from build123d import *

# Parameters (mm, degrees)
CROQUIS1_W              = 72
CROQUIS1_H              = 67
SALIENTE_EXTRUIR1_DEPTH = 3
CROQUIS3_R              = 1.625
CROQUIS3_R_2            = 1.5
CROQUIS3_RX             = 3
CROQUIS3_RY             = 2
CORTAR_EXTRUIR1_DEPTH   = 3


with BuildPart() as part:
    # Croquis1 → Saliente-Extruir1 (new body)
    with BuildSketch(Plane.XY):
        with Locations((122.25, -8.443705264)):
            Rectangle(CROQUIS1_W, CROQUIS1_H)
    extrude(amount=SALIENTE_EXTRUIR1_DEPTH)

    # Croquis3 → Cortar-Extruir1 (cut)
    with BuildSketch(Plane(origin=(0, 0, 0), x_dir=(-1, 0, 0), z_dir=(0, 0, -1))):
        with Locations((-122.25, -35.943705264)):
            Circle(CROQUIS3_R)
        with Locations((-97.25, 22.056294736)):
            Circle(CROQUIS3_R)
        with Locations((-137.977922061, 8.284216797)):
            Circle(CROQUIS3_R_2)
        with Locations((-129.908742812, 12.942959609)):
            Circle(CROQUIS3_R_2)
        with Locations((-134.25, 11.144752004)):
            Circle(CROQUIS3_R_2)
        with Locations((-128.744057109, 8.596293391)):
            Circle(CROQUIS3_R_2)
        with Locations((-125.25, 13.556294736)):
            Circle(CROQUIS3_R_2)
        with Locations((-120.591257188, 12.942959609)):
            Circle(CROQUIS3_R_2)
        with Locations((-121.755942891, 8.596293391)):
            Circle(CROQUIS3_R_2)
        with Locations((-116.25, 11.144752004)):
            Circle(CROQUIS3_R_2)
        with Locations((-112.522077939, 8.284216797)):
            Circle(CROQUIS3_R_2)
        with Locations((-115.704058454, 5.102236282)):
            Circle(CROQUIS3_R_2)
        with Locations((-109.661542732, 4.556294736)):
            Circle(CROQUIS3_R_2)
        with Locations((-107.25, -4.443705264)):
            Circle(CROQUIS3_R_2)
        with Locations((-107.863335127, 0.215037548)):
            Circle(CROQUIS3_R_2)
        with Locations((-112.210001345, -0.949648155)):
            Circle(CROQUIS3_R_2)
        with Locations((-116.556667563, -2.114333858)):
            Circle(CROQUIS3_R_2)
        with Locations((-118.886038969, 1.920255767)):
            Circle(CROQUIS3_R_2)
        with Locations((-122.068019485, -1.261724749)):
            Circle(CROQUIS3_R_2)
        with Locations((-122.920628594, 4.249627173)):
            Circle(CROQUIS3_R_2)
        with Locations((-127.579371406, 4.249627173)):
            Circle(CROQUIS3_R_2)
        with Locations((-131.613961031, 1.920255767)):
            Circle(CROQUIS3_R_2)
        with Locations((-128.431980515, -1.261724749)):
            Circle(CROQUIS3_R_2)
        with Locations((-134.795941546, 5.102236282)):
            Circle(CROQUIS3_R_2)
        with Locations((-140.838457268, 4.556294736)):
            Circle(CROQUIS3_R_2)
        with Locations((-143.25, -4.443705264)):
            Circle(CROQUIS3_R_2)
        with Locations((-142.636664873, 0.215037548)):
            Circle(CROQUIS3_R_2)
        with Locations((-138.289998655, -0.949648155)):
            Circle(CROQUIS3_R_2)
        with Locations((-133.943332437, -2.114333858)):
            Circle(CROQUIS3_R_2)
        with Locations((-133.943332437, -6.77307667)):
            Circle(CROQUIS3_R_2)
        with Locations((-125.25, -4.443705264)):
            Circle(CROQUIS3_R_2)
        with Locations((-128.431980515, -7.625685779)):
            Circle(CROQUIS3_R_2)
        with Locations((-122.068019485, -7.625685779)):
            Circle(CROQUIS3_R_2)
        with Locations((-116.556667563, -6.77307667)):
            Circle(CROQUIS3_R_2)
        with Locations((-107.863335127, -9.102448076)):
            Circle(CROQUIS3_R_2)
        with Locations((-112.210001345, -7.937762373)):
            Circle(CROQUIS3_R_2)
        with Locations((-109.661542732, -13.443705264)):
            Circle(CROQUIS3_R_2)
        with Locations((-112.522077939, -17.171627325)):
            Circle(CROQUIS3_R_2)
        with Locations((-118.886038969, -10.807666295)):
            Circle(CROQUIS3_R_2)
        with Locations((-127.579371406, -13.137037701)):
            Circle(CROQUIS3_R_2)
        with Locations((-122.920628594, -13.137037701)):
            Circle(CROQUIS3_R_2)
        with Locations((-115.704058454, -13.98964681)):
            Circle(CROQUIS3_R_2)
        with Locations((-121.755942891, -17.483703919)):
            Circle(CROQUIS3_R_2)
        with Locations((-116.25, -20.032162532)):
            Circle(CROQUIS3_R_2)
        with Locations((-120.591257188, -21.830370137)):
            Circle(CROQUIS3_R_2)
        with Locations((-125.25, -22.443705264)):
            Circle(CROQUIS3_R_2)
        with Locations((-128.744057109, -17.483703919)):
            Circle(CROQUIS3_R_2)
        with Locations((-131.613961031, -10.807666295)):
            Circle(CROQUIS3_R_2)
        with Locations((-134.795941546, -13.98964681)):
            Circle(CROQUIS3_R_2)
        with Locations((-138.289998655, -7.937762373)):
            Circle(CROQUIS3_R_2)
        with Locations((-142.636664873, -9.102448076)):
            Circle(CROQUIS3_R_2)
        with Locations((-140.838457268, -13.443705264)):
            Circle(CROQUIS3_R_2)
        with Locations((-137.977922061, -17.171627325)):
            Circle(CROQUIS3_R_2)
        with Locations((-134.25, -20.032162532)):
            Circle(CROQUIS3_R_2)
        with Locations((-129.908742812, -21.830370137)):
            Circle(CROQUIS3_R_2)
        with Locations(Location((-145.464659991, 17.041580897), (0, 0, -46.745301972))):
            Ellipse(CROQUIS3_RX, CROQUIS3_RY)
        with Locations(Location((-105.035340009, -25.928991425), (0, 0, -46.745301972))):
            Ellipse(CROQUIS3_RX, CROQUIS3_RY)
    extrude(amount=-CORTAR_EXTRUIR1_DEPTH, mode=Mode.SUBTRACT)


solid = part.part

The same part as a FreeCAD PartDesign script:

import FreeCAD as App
import Part
import Sketcher

V = App.Vector
Q = App.Units.Quantity

doc = App.newDocument("Part")
body = doc.addObject("PartDesign::Body", "Body")

# Sketch on XY plane
sketch1 = body.newObject("Sketcher::SketchObject", "Sketch")
sketch1.AttachmentSupport = (doc.getObject("XY_Plane"), [""])
sketch1.MapMode = "FlatFace"
sketch1.addGeometry([
    Part.LineSegment(V(86.25, 25.056295, 0), V(86.25, -41.943705, 0)),
    Part.LineSegment(V(86.25, -41.943705, 0), V(158.25, -41.943705, 0)),
    Part.LineSegment(V(158.25, -41.943705, 0), V(158.25, 25.056295, 0)),
    Part.LineSegment(V(158.25, 25.056295, 0), V(86.25, 25.056295, 0)),
], False)
sketch1.addConstraint([
    Sketcher.Constraint("Coincident", 0, 2, 1, 1),
    Sketcher.Constraint("Coincident", 1, 2, 2, 1),
    Sketcher.Constraint("Coincident", 2, 2, 3, 1),
    Sketcher.Constraint("Coincident", 3, 2, 0, 1),
    Sketcher.Constraint("Vertical", 0),
    Sketcher.Constraint("Horizontal", 1),
    Sketcher.Constraint("Vertical", 2),
    Sketcher.Constraint("Horizontal", 3),
    Sketcher.Constraint("DistanceX", 1, 1, 1, 2, Q("72 mm")),
    Sketcher.Constraint("DistanceY", 0, 2, 0, 1, Q("67 mm")),
    Sketcher.Constraint("DistanceX", -1, 1, 0, 2, Q("86.25 mm")),
    Sketcher.Constraint("DistanceY", 0, 2, -1, 1, Q("41.943705 mm")),
])
pad1 = body.newObject("PartDesign::Pad", "Pad")
pad1.Profile = sketch1
pad1.Length = 3

# Sketch on XY plane
sketch2 = body.newObject("Sketcher::SketchObject", "Sketch001")
sketch2.AttachmentSupport = (doc.getObject("XY_Plane"), [""])
sketch2.MapMode = "FlatFace"
sketch2.addGeometry([
    Part.Circle(V(122.25, -35.943705, 0), V(0, 0, 1), 1.625),  # 0
    Part.Circle(V(97.25, 22.056295, 0), V(0, 0, 1), 1.625),  # 1
    Part.Circle(V(137.977922, 8.284217, 0), V(0, 0, 1), 1.5),  # 2
    Part.Circle(V(129.908743, 12.94296, 0), V(0, 0, 1), 1.5),  # 3
    Part.Circle(V(134.25, 11.144752, 0), V(0, 0, 1), 1.5),  # 4
    Part.Circle(V(128.744057, 8.596293, 0), V(0, 0, 1), 1.5),  # 5
    Part.Circle(V(125.25, 13.556295, 0), V(0, 0, 1), 1.5),  # 6
    Part.Circle(V(120.591257, 12.94296, 0), V(0, 0, 1), 1.5),  # 7
    Part.Circle(V(121.755943, 8.596293, 0), V(0, 0, 1), 1.5),  # 8
    Part.Circle(V(116.25, 11.144752, 0), V(0, 0, 1), 1.5),  # 9
    Part.Circle(V(112.522078, 8.284217, 0), V(0, 0, 1), 1.5),  # 10
    Part.Circle(V(115.704058, 5.102236, 0), V(0, 0, 1), 1.5),  # 11
    Part.Circle(V(109.661543, 4.556295, 0), V(0, 0, 1), 1.5),  # 12
    Part.Circle(V(107.25, -4.443705, 0), V(0, 0, 1), 1.5),  # 13
    Part.Circle(V(107.863335, 0.215038, 0), V(0, 0, 1), 1.5),  # 14
    Part.Circle(V(112.210001, -0.949648, 0), V(0, 0, 1), 1.5),  # 15
    Part.Circle(V(116.556668, -2.114334, 0), V(0, 0, 1), 1.5),  # 16
    Part.Circle(V(118.886039, 1.920256, 0), V(0, 0, 1), 1.5),  # 17
    Part.Circle(V(122.068019, -1.261725, 0), V(0, 0, 1), 1.5),  # 18
    Part.Circle(V(122.920629, 4.249627, 0), V(0, 0, 1), 1.5),  # 19
    Part.Circle(V(127.579371, 4.249627, 0), V(0, 0, 1), 1.5),  # 20
    Part.Circle(V(131.613961, 1.920256, 0), V(0, 0, 1), 1.5),  # 21
    Part.Circle(V(128.431981, -1.261725, 0), V(0, 0, 1), 1.5),  # 22
    Part.Circle(V(134.795942, 5.102236, 0), V(0, 0, 1), 1.5),  # 23
    Part.Circle(V(140.838457, 4.556295, 0), V(0, 0, 1), 1.5),  # 24
    Part.Circle(V(143.25, -4.443705, 0), V(0, 0, 1), 1.5),  # 25
    Part.Circle(V(142.636665, 0.215038, 0), V(0, 0, 1), 1.5),  # 26
    Part.Circle(V(138.289999, -0.949648, 0), V(0, 0, 1), 1.5),  # 27
    Part.Circle(V(133.943332, -2.114334, 0), V(0, 0, 1), 1.5),  # 28
    Part.Circle(V(133.943332, -6.773077, 0), V(0, 0, 1), 1.5),  # 29
    Part.Circle(V(125.25, -4.443705, 0), V(0, 0, 1), 1.5),  # 30
    Part.Circle(V(128.431981, -7.625686, 0), V(0, 0, 1), 1.5),  # 31
    Part.Circle(V(122.068019, -7.625686, 0), V(0, 0, 1), 1.5),  # 32
    Part.Circle(V(116.556668, -6.773077, 0), V(0, 0, 1), 1.5),  # 33
    Part.Circle(V(107.863335, -9.102448, 0), V(0, 0, 1), 1.5),  # 34
    Part.Circle(V(112.210001, -7.937762, 0), V(0, 0, 1), 1.5),  # 35
    Part.Circle(V(109.661543, -13.443705, 0), V(0, 0, 1), 1.5),  # 36
    Part.Circle(V(112.522078, -17.171627, 0), V(0, 0, 1), 1.5),  # 37
    Part.Circle(V(118.886039, -10.807666, 0), V(0, 0, 1), 1.5),  # 38
    Part.Circle(V(127.579371, -13.137038, 0), V(0, 0, 1), 1.5),  # 39
    Part.Circle(V(122.920629, -13.137038, 0), V(0, 0, 1), 1.5),  # 40
    Part.Circle(V(115.704058, -13.989647, 0), V(0, 0, 1), 1.5),  # 41
    Part.Circle(V(121.755943, -17.483704, 0), V(0, 0, 1), 1.5),  # 42
    Part.Circle(V(116.25, -20.032163, 0), V(0, 0, 1), 1.5),  # 43
    Part.Circle(V(120.591257, -21.83037, 0), V(0, 0, 1), 1.5),  # 44
    Part.Circle(V(125.25, -22.443705, 0), V(0, 0, 1), 1.5),  # 45
    Part.Circle(V(128.744057, -17.483704, 0), V(0, 0, 1), 1.5),  # 46
    Part.Circle(V(131.613961, -10.807666, 0), V(0, 0, 1), 1.5),  # 47
    Part.Circle(V(134.795942, -13.989647, 0), V(0, 0, 1), 1.5),  # 48
    Part.Circle(V(138.289999, -7.937762, 0), V(0, 0, 1), 1.5),  # 49
    Part.Circle(V(142.636665, -9.102448, 0), V(0, 0, 1), 1.5),  # 50
    Part.Circle(V(140.838457, -13.443705, 0), V(0, 0, 1), 1.5),  # 51
    Part.Circle(V(137.977922, -17.171627, 0), V(0, 0, 1), 1.5),  # 52
    Part.Circle(V(134.25, -20.032163, 0), V(0, 0, 1), 1.5),  # 53
    Part.Circle(V(129.908743, -21.83037, 0), V(0, 0, 1), 1.5),  # 54
    Part.Ellipse(V(143.408932, 14.856637, 0), V(146.92129, 15.671095, 0), V(145.46466, 17.041581, 0)),  # 55
    Part.Ellipse(V(102.979612, -28.113936, 0), V(106.49197, -27.299477, 0), V(105.03534, -25.928991, 0)),  # 56
], False)
sketch2.addConstraint([
    Sketcher.Constraint("Block", 55),
    Sketcher.Constraint("Block", 56),
    Sketcher.Constraint("Equal", 0, 1),
    Sketcher.Constraint("Equal", 2, 3),
    Sketcher.Constraint("Equal", 3, 4),
    Sketcher.Constraint("Equal", 4, 5),
    Sketcher.Constraint("Equal", 5, 6),
    Sketcher.Constraint("Equal", 6, 7),
    Sketcher.Constraint("Equal", 7, 8),
    Sketcher.Constraint("Equal", 8, 9),
    Sketcher.Constraint("Equal", 9, 10),
    Sketcher.Constraint("Equal", 10, 11),
    Sketcher.Constraint("Equal", 11, 12),
    Sketcher.Constraint("Equal", 12, 13),
    Sketcher.Constraint("Equal", 13, 14),
    Sketcher.Constraint("Equal", 14, 15),
    Sketcher.Constraint("Equal", 15, 16),
    Sketcher.Constraint("Equal", 16, 17),
    Sketcher.Constraint("Equal", 17, 18),
    Sketcher.Constraint("Equal", 18, 19),
    Sketcher.Constraint("Equal", 19, 20),
    Sketcher.Constraint("Equal", 20, 21),
    Sketcher.Constraint("Equal", 21, 22),
    Sketcher.Constraint("Equal", 22, 23),
    Sketcher.Constraint("Equal", 23, 24),
    Sketcher.Constraint("Equal", 24, 25),
    Sketcher.Constraint("Equal", 25, 26),
    Sketcher.Constraint("Equal", 26, 27),
    Sketcher.Constraint("Equal", 27, 28),
    Sketcher.Constraint("Equal", 28, 29),
    Sketcher.Constraint("Equal", 29, 30),
    Sketcher.Constraint("Equal", 30, 31),
    Sketcher.Constraint("Equal", 31, 32),
    Sketcher.Constraint("Equal", 32, 33),
    Sketcher.Constraint("Equal", 33, 34),
    Sketcher.Constraint("Equal", 34, 35),
    Sketcher.Constraint("Equal", 35, 36),
    Sketcher.Constraint("Equal", 36, 37),
    Sketcher.Constraint("Equal", 37, 38),
    Sketcher.Constraint("Equal", 38, 39),
    Sketcher.Constraint("Equal", 39, 40),
    Sketcher.Constraint("Equal", 40, 41),
    Sketcher.Constraint("Equal", 41, 42),
    Sketcher.Constraint("Equal", 42, 43),
    Sketcher.Constraint("Equal", 43, 44),
    Sketcher.Constraint("Equal", 44, 45),
    Sketcher.Constraint("Equal", 45, 46),
    Sketcher.Constraint("Equal", 46, 47),
    Sketcher.Constraint("Equal", 47, 48),
    Sketcher.Constraint("Equal", 48, 49),
    Sketcher.Constraint("Equal", 49, 50),
    Sketcher.Constraint("Equal", 50, 51),
    Sketcher.Constraint("Equal", 51, 52),
    Sketcher.Constraint("Equal", 52, 53),
    Sketcher.Constraint("Equal", 53, 54),
    Sketcher.Constraint("Horizontal", 3, 3, 7, 3),
    Sketcher.Constraint("Horizontal", 5, 3, 8, 3),
    Sketcher.Constraint("Horizontal", 4, 3, 9, 3),
    Sketcher.Constraint("Horizontal", 2, 3, 10, 3),
    Sketcher.Constraint("Horizontal", 19, 3, 20, 3),
    Sketcher.Constraint("Horizontal", 17, 3, 21, 3),
    Sketcher.Constraint("Horizontal", 18, 3, 22, 3),
    Sketcher.Constraint("Horizontal", 11, 3, 23, 3),
    Sketcher.Constraint("Horizontal", 12, 3, 24, 3),
    Sketcher.Constraint("Horizontal", 13, 3, 25, 3),
    Sketcher.Constraint("Horizontal", 14, 3, 26, 3),
    Sketcher.Constraint("Horizontal", 15, 3, 27, 3),
    Sketcher.Constraint("Horizontal", 16, 3, 28, 3),
    Sketcher.Constraint("Horizontal", 25, 3, 30, 3),
    Sketcher.Constraint("Horizontal", 31, 3, 32, 3),
    Sketcher.Constraint("Horizontal", 29, 3, 33, 3),
    Sketcher.Constraint("Horizontal", 39, 3, 40, 3),
    Sketcher.Constraint("Horizontal", 42, 3, 46, 3),
    Sketcher.Constraint("Horizontal", 38, 3, 47, 3),
    Sketcher.Constraint("Horizontal", 41, 3, 48, 3),
    Sketcher.Constraint("Horizontal", 35, 3, 49, 3),
    Sketcher.Constraint("Horizontal", 34, 3, 50, 3),
    Sketcher.Constraint("Horizontal", 36, 3, 51, 3),
    Sketcher.Constraint("Horizontal", 37, 3, 52, 3),
    Sketcher.Constraint("Horizontal", 43, 3, 53, 3),
    Sketcher.Constraint("Horizontal", 44, 3, 54, 3),
    Sketcher.Constraint("Vertical", 28, 3, 29, 3),
    Sketcher.Constraint("Vertical", 6, 3, 30, 3),
    Sketcher.Constraint("Vertical", 22, 3, 31, 3),
    Sketcher.Constraint("Vertical", 18, 3, 32, 3),
    Sketcher.Constraint("Vertical", 16, 3, 33, 3),
    Sketcher.Constraint("Vertical", 14, 3, 34, 3),
    Sketcher.Constraint("Vertical", 15, 3, 35, 3),
    Sketcher.Constraint("Vertical", 12, 3, 36, 3),
    Sketcher.Constraint("Vertical", 10, 3, 37, 3),
    Sketcher.Constraint("Vertical", 17, 3, 38, 3),
    Sketcher.Constraint("Vertical", 20, 3, 39, 3),
    Sketcher.Constraint("Vertical", 19, 3, 40, 3),
    Sketcher.Constraint("Vertical", 11, 3, 41, 3),
    Sketcher.Constraint("Vertical", 8, 3, 42, 3),
    Sketcher.Constraint("Vertical", 9, 3, 43, 3),
    Sketcher.Constraint("Vertical", 7, 3, 44, 3),
    Sketcher.Constraint("Vertical", 30, 3, 45, 3),
    Sketcher.Constraint("Vertical", 5, 3, 46, 3),
    Sketcher.Constraint("Vertical", 21, 3, 47, 3),
    Sketcher.Constraint("Vertical", 23, 3, 48, 3),
    Sketcher.Constraint("Vertical", 27, 3, 49, 3),
    Sketcher.Constraint("Vertical", 26, 3, 50, 3),
    Sketcher.Constraint("Vertical", 24, 3, 51, 3),
    Sketcher.Constraint("Vertical", 2, 3, 52, 3),
    Sketcher.Constraint("Vertical", 4, 3, 53, 3),
    Sketcher.Constraint("Vertical", 3, 3, 54, 3),
    Sketcher.Constraint("Diameter", 2, Q("3 mm")),
    Sketcher.Constraint("Diameter", 0, Q("3.25 mm")),
    Sketcher.Constraint("DistanceX", 1, 3, 0, 3, Q("25 mm")),
    Sketcher.Constraint("DistanceY", 0, 3, 1, 3, Q("58 mm")),
    Sketcher.Constraint("DistanceX", 1, 3, 4, 3, Q("37 mm")),
    Sketcher.Constraint("DistanceX", 6, 3, 4, 3, Q("9 mm")),
    Sketcher.Constraint("DistanceX", 9, 3, 6, 3, Q("9 mm")),
    Sketcher.Constraint("DistanceY", 13, 3, 12, 3, Q("9 mm")),
    Sketcher.Constraint("DistanceX", 13, 3, 9, 3, Q("9 mm")),
    Sketcher.Constraint("DistanceY", 36, 3, 13, 3, Q("9 mm")),
    Sketcher.Constraint("DistanceY", 6, 3, 1, 3, Q("8.5 mm")),
    Sketcher.Constraint("DistanceX", -1, 1, 0, 3, Q("122.25 mm")),
    Sketcher.Constraint("DistanceX", -1, 1, 15, 3, Q("112.210001 mm")),
    Sketcher.Constraint("DistanceX", -1, 1, 25, 3, Q("143.25 mm")),
    Sketcher.Constraint("DistanceX", -1, 1, 27, 3, Q("138.289999 mm")),
    Sketcher.Constraint("DistanceY", 5, 3, 1, 3, Q("13.460001 mm")),
    Sketcher.Constraint("DistanceY", 12, 3, 8, 3, Q("4.039999 mm")),
    Sketcher.Constraint("DistanceY", 45, 3, 42, 3, Q("4.960001 mm")),
    Sketcher.Constraint("DistanceX", 7, 3, 5, 3, Q("8.1528 mm")),
    Sketcher.Constraint("DistanceX", 8, 3, 3, 3, Q("8.1528 mm")),
    Sketcher.Constraint("DistanceX", 11, 3, 7, 3, Q("4.887199 mm")),
    Sketcher.Constraint("DistanceX", 12, 3, 8, 3, Q("12.0944 mm")),
    Sketcher.Constraint("DistanceY", 14, 3, 11, 3, Q("4.887199 mm")),
    Sketcher.Constraint("DistanceX", 5, 3, 24, 3, Q("12.0944 mm")),
    Sketcher.Constraint("DistanceY", 34, 3, 15, 3, Q("8.1528 mm")),
    Sketcher.Constraint("DistanceY", 48, 3, 50, 3, Q("4.887199 mm")),
    Sketcher.Constraint("DistanceX", 54, 3, 48, 3, Q("4.887199 mm")),
    Sketcher.Constraint("DistanceY", -1, 1, 3, 3, Q("12.94296 mm")),
    Sketcher.Constraint("DistanceX", -1, 1, 11, 3, Q("115.704058 mm")),
    Sketcher.Constraint("DistanceY", 15, 3, -1, 1, Q("0.949648 mm")),
    Sketcher.Constraint("DistanceX", -1, 1, 17, 3, Q("118.886039 mm")),
    Sketcher.Constraint("DistanceX", -1, 1, 18, 3, Q("122.068019 mm")),
    Sketcher.Constraint("DistanceX", -1, 1, 19, 3, Q("122.920629 mm")),
    Sketcher.Constraint("DistanceX", -1, 1, 20, 3, Q("127.579371 mm")),
    Sketcher.Constraint("DistanceX", -1, 1, 21, 3, Q("131.613961 mm")),
    Sketcher.Constraint("DistanceX", -1, 1, 22, 3, Q("128.431981 mm")),
    Sketcher.Constraint("DistanceX", -1, 1, 23, 3, Q("134.795942 mm")),
    Sketcher.Constraint("DistanceY", 44, 3, -1, 1, Q("21.83037 mm")),
    Sketcher.Constraint("DistanceX", 3, 3, 2, 3, Q("8.069179 mm")),
    Sketcher.Constraint("DistanceY", 5, 3, 4, 3, Q("2.548459 mm")),
    Sketcher.Constraint("DistanceX", 10, 3, 7, 3, Q("8.069179 mm")),
    Sketcher.Constraint("DistanceY", 11, 3, 10, 3, Q("3.181981 mm")),
    Sketcher.Constraint("DistanceY", 11, 3, 6, 3, Q("8.454058 mm")),
    Sketcher.Constraint("DistanceX", 11, 3, 16, 3, Q("0.852609 mm")),
    Sketcher.Constraint("DistanceY", 16, 3, 11, 3, Q("7.21657 mm")),
    Sketcher.Constraint("DistanceY", 17, 3, 11, 3, Q("3.181981 mm")),
    Sketcher.Constraint("DistanceY", 18, 3, 17, 3, Q("3.181981 mm")),
    Sketcher.Constraint("DistanceY", 17, 3, 19, 3, Q("2.329371 mm")),
    Sketcher.Constraint("DistanceX", 21, 3, 28, 3, Q("2.329371 mm")),
    Sketcher.Constraint("DistanceY", 29, 3, 27, 3, Q("5.823429 mm")),
    Sketcher.Constraint("DistanceY", 29, 3, 22, 3, Q("5.511352 mm")),
    Sketcher.Constraint("DistanceY", 31, 3, 30, 3, Q("3.181981 mm")),
    Sketcher.Constraint("DistanceY", 35, 3, 16, 3, Q("5.823429 mm")),
    Sketcher.Constraint("DistanceY", 37, 3, 34, 3, Q("8.069179 mm")),
    Sketcher.Constraint("DistanceY", 38, 3, 32, 3, Q("3.181981 mm")),
    Sketcher.Constraint("DistanceY", 39, 3, 31, 3, Q("5.511352 mm")),
    Sketcher.Constraint("DistanceY", 43, 3, 42, 3, Q("2.548459 mm")),
    Sketcher.Constraint("DistanceX", -1, 1, 14, 3, Q("107.863335 mm")),
    Sketcher.Constraint("DistanceX", -1, 1, 26, 3, Q("142.636665 mm")),
    Sketcher.Constraint("DistanceY", 42, 3, -1, 1, Q("17.483704 mm")),
])
pocket1 = body.newObject("PartDesign::Pocket", "Pocket")
pocket1.Profile = sketch2
pocket1.Length = 3
pocket1.Reversed = True

doc.recompute()
